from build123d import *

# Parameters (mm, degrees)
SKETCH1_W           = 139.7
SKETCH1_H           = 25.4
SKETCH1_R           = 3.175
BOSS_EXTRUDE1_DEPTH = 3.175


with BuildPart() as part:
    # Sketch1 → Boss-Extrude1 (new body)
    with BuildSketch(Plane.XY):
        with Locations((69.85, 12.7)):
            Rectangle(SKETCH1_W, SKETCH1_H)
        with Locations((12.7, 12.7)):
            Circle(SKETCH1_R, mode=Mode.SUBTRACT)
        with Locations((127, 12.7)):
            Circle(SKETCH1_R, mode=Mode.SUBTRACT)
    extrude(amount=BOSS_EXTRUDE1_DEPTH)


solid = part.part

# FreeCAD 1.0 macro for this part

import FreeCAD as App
import Part
import Sketcher
from FreeCAD import Vector
Q = App.Units.Quantity


def add_polygon(sketch, points):
    """Adds a closed chain of lines whose ends are joined by coincident constraints."""
    first, n = sketch.GeometryCount, len(points)
    for a, b in zip(points, points[1:] + points[:1]):
        sketch.addGeometry(Part.LineSegment(App.Vector(*a, 0), App.Vector(*b, 0)), False)
    for i in range(n):
        sketch.addConstraint(Sketcher.Constraint("Coincident", first + i, 2, first + (i + 1) % n, 1))

doc = App.newDocument("Part")
params = doc.addObject("Spreadsheet::Sheet", "Params")
for row, (alias, value) in enumerate([
    ("sketch1_diameter", "0.25 in"),
    ("sketch1_height", "1 in"),
    ("sketch1_width", "5.5 in"),
    ("pad1_length", "0.125 in"),
], start=1):
    params.set(f"A{row}", alias)
    params.set(f"B{row}", "=" + value)
    params.setAlias(f"B{row}", alias)

body = doc.addObject("PartDesign::Body", "Body")

# Sketch on XY plane
sketch1 = body.newObject("Sketcher::SketchObject", "Sketch")
sketch1.AttachmentSupport = (doc.getObject("XY_Plane"), [""])
sketch1.MapMode = "FlatFace"
add_polygon(sketch1, [(0, 25.4), (0, 0), (139.7, 0), (139.7, 25.4)])  # lines 0-3
sketch1.addGeometry(Part.Circle(Vector(12.7, 12.7, 0), Vector(0, 0, 1), 3.2), False)  # 4
sketch1.addGeometry(Part.Circle(Vector(127, 12.7, 0), Vector(0, 0, 1), 3.2), False)  # 5
sketch1.addConstraint(Sketcher.Constraint("Vertical", 0))
sketch1.addConstraint(Sketcher.Constraint("Horizontal", 1))
sketch1.addConstraint(Sketcher.Constraint("Vertical", 2))
sketch1.addConstraint(Sketcher.Constraint("Horizontal", 3))
sketch1.addConstraint(Sketcher.Constraint("Coincident", 0, 2, -1, 1))
sketch1.addConstraint(Sketcher.Constraint("Equal", 4, 5))
sketch1.addConstraint(Sketcher.Constraint("Horizontal", 4, 3, 5, 3))
sketch1.addConstraint(Sketcher.Constraint("Diameter", 4, Q("0.25 in")))
sketch1.addConstraint(Sketcher.Constraint("DistanceY", 0, 2, 0, 1, Q("1 in")))
sketch1.addConstraint(Sketcher.Constraint("DistanceX", 1, 1, 1, 2, Q("5.5 in")))
sketch1.addConstraint(Sketcher.Constraint("DistanceX", -1, 1, 5, 3, Q("5 in")))
sketch1.addConstraint(Sketcher.Constraint("DistanceX", 4, 3, 1, 2, Q("5 in")))
sketch1.addConstraint(Sketcher.Constraint("DistanceY", -1, 1, 4, 3, Q("0.5 in")))
sketch1.setExpression("Constraints[11]", "Params.sketch1_diameter")
sketch1.setExpression("Constraints[12]", "Params.sketch1_height")
sketch1.setExpression("Constraints[13]", "Params.sketch1_width")
pad1 = body.newObject("PartDesign::Pad", "Pad")
pad1.Profile = sketch1
pad1.setExpression("Length", "Params.pad1_length")

doc.recompute()
